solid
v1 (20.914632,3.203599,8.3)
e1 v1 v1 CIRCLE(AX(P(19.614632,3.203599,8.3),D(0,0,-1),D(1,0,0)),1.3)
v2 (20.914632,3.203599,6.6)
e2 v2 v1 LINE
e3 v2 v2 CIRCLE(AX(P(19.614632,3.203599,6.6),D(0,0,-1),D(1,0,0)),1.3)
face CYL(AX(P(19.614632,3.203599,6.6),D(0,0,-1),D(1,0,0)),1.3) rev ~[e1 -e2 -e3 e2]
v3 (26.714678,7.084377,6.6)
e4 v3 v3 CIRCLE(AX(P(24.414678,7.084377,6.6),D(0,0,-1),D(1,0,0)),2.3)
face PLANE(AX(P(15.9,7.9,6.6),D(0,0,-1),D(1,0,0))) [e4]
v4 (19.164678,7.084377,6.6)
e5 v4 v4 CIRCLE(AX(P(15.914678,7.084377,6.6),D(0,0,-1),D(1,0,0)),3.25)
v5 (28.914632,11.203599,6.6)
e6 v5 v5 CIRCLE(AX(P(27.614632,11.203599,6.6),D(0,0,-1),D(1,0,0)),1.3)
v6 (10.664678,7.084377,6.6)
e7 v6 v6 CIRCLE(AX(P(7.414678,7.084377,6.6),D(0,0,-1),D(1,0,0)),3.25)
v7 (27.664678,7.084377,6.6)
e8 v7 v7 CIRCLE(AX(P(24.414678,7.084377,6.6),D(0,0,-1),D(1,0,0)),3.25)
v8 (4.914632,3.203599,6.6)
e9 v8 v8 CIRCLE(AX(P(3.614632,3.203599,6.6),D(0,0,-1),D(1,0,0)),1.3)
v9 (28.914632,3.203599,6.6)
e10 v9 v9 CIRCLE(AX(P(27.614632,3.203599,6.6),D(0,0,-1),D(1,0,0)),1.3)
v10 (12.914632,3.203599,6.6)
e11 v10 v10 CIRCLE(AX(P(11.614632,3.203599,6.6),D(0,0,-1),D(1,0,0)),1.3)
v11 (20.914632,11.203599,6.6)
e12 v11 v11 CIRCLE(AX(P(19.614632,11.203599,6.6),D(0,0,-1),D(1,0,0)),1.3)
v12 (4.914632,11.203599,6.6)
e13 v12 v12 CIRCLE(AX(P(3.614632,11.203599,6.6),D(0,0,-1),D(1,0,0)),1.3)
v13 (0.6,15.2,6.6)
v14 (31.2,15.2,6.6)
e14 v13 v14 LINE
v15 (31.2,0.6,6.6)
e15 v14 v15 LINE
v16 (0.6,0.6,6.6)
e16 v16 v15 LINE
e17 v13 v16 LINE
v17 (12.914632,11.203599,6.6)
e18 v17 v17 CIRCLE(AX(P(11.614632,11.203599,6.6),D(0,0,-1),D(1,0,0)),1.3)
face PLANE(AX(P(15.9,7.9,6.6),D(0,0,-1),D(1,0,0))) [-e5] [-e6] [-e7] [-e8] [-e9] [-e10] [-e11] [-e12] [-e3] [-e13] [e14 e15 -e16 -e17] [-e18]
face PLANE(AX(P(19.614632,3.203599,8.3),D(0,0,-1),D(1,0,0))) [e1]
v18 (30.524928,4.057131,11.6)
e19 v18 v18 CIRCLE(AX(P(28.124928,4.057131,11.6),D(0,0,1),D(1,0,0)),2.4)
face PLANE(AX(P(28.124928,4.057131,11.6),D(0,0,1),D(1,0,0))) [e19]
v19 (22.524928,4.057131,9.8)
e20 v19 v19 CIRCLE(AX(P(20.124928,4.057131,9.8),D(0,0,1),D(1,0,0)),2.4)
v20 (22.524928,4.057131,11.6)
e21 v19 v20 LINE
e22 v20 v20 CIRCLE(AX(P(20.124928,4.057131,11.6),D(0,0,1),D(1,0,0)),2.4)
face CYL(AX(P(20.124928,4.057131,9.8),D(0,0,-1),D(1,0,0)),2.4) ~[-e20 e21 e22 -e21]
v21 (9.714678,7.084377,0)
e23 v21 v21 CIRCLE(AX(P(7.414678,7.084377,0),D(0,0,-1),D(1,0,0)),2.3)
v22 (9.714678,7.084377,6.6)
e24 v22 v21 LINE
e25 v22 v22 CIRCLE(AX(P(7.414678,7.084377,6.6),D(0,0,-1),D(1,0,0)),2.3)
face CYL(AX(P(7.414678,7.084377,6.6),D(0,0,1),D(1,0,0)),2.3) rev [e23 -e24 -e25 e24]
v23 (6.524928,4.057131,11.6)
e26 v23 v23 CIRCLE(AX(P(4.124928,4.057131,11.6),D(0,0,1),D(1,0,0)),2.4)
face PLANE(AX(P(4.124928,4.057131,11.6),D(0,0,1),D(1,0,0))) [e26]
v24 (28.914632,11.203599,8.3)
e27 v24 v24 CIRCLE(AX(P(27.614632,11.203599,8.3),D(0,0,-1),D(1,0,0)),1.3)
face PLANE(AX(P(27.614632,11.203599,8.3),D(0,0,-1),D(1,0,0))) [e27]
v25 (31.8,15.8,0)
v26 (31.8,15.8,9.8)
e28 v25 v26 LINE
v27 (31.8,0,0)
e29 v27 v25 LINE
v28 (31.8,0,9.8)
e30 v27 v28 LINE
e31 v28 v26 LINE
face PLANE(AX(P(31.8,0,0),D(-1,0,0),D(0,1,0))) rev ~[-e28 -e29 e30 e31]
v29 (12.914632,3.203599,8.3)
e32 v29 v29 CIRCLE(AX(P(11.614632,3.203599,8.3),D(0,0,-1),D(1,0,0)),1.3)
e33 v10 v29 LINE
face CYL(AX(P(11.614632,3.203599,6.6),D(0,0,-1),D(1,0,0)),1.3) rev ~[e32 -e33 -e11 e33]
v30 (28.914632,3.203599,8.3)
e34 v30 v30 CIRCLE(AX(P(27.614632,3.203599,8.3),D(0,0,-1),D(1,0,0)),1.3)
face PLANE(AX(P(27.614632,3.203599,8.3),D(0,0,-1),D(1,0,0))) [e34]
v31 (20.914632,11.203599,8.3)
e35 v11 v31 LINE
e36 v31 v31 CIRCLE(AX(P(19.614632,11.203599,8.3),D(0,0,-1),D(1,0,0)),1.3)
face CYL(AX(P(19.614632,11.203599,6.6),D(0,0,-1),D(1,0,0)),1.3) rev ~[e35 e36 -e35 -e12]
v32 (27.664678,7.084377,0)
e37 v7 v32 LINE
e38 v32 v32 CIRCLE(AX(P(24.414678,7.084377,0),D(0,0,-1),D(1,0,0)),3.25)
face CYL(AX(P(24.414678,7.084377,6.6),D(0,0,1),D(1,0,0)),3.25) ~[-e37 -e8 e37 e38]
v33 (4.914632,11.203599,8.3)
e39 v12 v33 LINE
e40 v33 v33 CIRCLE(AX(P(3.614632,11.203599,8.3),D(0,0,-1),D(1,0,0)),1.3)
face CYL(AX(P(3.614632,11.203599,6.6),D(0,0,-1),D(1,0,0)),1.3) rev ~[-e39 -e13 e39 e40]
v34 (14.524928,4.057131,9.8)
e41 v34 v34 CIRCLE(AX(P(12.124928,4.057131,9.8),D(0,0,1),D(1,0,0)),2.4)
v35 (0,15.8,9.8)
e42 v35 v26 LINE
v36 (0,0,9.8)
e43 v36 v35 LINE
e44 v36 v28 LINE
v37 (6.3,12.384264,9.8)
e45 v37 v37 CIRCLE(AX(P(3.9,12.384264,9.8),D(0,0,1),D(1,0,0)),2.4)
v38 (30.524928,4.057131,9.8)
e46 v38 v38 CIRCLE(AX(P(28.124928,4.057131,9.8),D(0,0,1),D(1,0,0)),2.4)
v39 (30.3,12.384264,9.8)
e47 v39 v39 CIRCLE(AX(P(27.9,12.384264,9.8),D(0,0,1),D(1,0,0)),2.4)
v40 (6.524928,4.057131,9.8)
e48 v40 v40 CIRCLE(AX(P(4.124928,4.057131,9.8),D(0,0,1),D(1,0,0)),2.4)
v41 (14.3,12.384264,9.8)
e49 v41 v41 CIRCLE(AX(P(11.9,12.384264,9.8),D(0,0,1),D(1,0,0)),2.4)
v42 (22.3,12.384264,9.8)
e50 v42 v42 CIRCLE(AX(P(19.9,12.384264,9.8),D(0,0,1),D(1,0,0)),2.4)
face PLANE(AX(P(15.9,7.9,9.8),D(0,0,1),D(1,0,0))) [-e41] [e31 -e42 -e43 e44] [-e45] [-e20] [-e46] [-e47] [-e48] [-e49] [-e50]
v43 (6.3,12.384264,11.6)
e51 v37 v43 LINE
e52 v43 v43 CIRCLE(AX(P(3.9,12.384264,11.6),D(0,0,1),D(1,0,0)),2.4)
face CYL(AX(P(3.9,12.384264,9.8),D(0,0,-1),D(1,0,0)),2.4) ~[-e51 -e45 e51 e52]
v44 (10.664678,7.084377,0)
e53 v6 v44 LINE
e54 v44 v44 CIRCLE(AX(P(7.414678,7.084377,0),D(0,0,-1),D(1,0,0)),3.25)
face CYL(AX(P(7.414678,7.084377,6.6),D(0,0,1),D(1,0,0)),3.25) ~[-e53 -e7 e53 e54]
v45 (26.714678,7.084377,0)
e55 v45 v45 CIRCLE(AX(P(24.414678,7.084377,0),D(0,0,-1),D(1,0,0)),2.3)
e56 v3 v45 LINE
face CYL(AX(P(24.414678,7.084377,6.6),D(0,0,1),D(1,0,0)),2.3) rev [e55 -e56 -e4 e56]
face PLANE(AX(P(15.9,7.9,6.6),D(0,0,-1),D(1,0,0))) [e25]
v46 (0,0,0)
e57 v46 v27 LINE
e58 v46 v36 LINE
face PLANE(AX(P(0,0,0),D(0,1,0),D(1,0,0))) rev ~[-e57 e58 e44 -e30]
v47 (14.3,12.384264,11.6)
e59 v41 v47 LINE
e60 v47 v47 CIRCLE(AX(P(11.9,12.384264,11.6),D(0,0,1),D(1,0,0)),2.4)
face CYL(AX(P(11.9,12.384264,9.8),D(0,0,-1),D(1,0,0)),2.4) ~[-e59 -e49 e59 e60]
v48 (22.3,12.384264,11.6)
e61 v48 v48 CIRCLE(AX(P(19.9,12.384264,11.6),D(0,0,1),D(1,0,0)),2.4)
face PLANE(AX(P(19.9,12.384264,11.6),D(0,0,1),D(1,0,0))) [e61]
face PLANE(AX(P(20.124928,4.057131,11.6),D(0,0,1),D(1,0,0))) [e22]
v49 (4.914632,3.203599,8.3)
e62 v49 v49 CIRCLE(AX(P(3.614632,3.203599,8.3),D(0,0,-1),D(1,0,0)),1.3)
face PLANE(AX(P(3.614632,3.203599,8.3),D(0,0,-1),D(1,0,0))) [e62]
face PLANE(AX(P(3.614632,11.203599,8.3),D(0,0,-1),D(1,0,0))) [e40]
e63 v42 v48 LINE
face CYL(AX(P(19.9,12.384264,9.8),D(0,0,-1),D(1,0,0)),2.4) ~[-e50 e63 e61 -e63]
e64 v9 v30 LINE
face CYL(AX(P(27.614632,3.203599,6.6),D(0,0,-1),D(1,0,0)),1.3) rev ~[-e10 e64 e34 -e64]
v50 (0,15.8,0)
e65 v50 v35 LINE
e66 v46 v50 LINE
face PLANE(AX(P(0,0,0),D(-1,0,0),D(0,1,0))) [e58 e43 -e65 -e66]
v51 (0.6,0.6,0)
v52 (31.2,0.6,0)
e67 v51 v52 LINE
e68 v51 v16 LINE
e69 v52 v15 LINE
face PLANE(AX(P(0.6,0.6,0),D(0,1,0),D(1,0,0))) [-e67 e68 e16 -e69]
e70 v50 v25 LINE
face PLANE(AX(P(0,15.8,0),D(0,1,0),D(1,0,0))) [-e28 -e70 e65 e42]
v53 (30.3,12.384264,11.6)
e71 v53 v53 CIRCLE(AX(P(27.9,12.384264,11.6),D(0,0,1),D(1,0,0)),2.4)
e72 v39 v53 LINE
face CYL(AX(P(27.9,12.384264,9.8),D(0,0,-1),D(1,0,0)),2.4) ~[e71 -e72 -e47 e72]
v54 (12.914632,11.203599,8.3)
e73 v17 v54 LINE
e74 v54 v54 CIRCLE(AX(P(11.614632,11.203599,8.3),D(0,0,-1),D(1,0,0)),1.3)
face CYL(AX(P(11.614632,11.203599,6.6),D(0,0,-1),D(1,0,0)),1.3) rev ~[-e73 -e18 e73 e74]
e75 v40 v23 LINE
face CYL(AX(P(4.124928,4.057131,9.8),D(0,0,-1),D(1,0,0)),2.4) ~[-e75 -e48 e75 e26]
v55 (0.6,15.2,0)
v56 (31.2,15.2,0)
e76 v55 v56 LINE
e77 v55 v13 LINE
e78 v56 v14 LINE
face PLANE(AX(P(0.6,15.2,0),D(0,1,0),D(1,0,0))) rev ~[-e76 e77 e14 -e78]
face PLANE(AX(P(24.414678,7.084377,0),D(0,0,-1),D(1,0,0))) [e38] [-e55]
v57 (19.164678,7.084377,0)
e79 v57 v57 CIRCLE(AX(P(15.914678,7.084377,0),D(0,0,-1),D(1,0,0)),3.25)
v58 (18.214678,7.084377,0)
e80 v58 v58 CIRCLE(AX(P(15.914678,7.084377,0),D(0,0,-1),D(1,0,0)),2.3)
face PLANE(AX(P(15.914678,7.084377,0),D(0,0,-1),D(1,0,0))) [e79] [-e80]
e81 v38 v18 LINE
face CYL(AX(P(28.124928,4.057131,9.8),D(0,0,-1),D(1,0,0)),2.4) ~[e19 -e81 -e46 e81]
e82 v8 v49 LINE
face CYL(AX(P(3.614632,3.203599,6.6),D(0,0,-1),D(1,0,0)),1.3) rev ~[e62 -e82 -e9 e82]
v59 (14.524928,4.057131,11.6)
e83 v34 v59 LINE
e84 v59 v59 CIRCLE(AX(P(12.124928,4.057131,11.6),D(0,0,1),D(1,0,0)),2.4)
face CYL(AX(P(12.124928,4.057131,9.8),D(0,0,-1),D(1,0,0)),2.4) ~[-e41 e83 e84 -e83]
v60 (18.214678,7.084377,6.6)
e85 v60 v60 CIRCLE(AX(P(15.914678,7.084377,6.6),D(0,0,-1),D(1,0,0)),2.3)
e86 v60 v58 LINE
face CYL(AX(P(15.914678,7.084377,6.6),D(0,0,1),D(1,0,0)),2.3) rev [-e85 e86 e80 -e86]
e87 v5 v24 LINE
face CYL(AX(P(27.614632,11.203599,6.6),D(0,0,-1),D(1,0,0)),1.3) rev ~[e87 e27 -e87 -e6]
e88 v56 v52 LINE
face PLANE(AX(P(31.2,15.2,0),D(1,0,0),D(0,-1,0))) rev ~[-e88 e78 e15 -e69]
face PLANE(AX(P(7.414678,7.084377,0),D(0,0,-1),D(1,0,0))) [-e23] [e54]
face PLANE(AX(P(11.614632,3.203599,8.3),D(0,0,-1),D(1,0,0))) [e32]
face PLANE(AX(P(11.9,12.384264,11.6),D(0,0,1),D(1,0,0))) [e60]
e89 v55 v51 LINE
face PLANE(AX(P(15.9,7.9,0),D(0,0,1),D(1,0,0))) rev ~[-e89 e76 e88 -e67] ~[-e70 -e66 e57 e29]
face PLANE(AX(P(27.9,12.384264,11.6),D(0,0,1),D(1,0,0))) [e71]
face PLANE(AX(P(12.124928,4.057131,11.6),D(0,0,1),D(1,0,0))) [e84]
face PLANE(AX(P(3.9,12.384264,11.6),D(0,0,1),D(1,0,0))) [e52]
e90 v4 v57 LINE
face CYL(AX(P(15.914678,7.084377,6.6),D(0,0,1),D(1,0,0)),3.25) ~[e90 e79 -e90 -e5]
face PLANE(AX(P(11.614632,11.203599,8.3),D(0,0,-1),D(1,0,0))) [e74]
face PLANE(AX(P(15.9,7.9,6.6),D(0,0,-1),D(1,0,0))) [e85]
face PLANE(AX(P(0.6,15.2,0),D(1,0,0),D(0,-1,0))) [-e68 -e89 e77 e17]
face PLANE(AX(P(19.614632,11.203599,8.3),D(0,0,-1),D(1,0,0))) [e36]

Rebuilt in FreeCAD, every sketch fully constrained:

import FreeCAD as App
import Part
import Sketcher
from FreeCAD import Vector

doc = App.newDocument("Part")
body = doc.addObject("PartDesign::Body", "Body")

sketch1 = doc.addObject("Sketcher::SketchObject", "Sketch")
body.addObject(sketch1)
sketch1.AttachmentSupport = (doc.XY_Plane, [""])
sketch1.MapMode = "FlatFace"
sketch1.addGeometry(Part.LineSegment(Vector(0, 16, 0), Vector(0, 0, 0)), False)
sketch1.addGeometry(Part.LineSegment(Vector(0, 0, 0), Vector(32, 0, 0)), False)
sketch1.addGeometry(Part.LineSegment(Vector(32, 0, 0), Vector(32, 16, 0)), False)
sketch1.addGeometry(Part.LineSegment(Vector(32, 16, 0), Vector(0, 16, 0)), False)
sketch1.addConstraint(Sketcher.Constraint("Coincident", 0, 2, 1, 1))
sketch1.addConstraint(Sketcher.Constraint("Coincident", 1, 2, 2, 1))
sketch1.addConstraint(Sketcher.Constraint("Coincident", 2, 2, 3, 1))
sketch1.addConstraint(Sketcher.Constraint("Coincident", 3, 2, 0, 1))
sketch1.addConstraint(Sketcher.Constraint("Vertical", 0))
sketch1.addConstraint(Sketcher.Constraint("Horizontal", 1))
sketch1.addConstraint(Sketcher.Constraint("Vertical", 2))
sketch1.addConstraint(Sketcher.Constraint("Horizontal", 3))
sketch1.addConstraint(Sketcher.Constraint("Coincident", 0, 2, -1, 1))
sketch1.addConstraint(Sketcher.Constraint("DistanceX", 1, 1, 1, 2, 31.8))
sketch1.addConstraint(Sketcher.Constraint("DistanceY", 0, 2, 0, 1, 15.8))
pad1 = doc.addObject("PartDesign::Pad", "Pad")
body.addObject(pad1)
pad1.Profile = sketch1
pad1.Length = 9.8

sketch2 = doc.addObject("Sketcher::SketchObject", "Sketch001")
body.addObject(sketch2)
sketch2.AttachmentSupport = (doc.XY_Plane, [""])
sketch2.MapMode = "FlatFace"
sketch2.AttachmentOffset = App.Placement(Vector(0, 0, 9.8), App.Rotation())
sketch2.addGeometry(Part.Circle(Vector(3.9, 12.4, 0), Vector(0, 0, 1), 2.4), False)
sketch2.addGeometry(Part.Circle(Vector(28.1, 4.1, 0), Vector(0, 0, 1), 2.4), False)
sketch2.addGeometry(Part.Circle(Vector(27.9, 12.4, 0), Vector(0, 0, 1), 2.4), False)
sketch2.addGeometry(Part.Circle(Vector(19.9, 12.4, 0), Vector(0, 0, 1), 2.4), False)
sketch2.addGeometry(Part.Circle(Vector(20.1, 4.1, 0), Vector(0, 0, 1), 2.4), False)
sketch2.addGeometry(Part.Circle(Vector(11.9, 12.4, 0), Vector(0, 0, 1), 2.4), False)
sketch2.addGeometry(Part.Circle(Vector(12.1, 4.1, 0), Vector(0, 0, 1), 2.4), False)
sketch2.addGeometry(Part.Circle(Vector(4.1, 4.1, 0), Vector(0, 0, 1), 2.4), False)
sketch2.addConstraint(Sketcher.Constraint("Equal", 0, 1))
sketch2.addConstraint(Sketcher.Constraint("Equal", 1, 2))
sketch2.addConstraint(Sketcher.Constraint("Equal", 2, 3))
sketch2.addConstraint(Sketcher.Constraint("Equal", 3, 4))
sketch2.addConstraint(Sketcher.Constraint("Equal", 4, 5))
sketch2.addConstraint(Sketcher.Constraint("Equal", 5, 6))
sketch2.addConstraint(Sketcher.Constraint("Equal", 6, 7))
sketch2.addConstraint(Sketcher.Constraint("Horizontal", 0, 3, 2, 3))
sketch2.addConstraint(Sketcher.Constraint("Horizontal", 2, 3, 3, 3))
sketch2.addConstraint(Sketcher.Constraint("Horizontal", 1, 3, 4, 3))
sketch2.addConstraint(Sketcher.Constraint("Horizontal", 3, 3, 5, 3))
sketch2.addConstraint(Sketcher.Constraint("Horizontal", 4, 3, 6, 3))
sketch2.addConstraint(Sketcher.Constraint("Horizontal", 6, 3, 7, 3))
sketch2.addConstraint(Sketcher.Constraint("Diameter", 0, 4.8))
sketch2.addConstraint(Sketcher.Constraint("DistanceX", 0, 3, 2, 3, 24.0))
sketch2.addConstraint(Sketcher.Constraint("DistanceX", 3, 3, 2, 3, 8.0))
sketch2.addConstraint(Sketcher.Constraint("DistanceX", 4, 3, 1, 3, 8.0))
sketch2.addConstraint(Sketcher.Constraint("DistanceX", 5, 3, 3, 3, 8.0))
sketch2.addConstraint(Sketcher.Constraint("DistanceX", 6, 3, 4, 3, 8.0))
sketch2.addConstraint(Sketcher.Constraint("DistanceX", 7, 3, 6, 3, 8.0))
sketch2.addConstraint(Sketcher.Constraint("DistanceX", -1, 1, 0, 3, 3.9))
sketch2.addConstraint(Sketcher.Constraint("DistanceX", -1, 1, 1, 3, 28.124928))
sketch2.addConstraint(Sketcher.Constraint("DistanceY", -1, 1, 1, 3, 4.057131))
sketch2.addConstraint(Sketcher.Constraint("DistanceY", -1, 1, 0, 3, 12.384264))
pad2 = doc.addObject("PartDesign::Pad", "Pad001")
body.addObject(pad2)
pad2.Profile = sketch2
pad2.Length = 1.8

sketch3 = doc.addObject("Sketcher::SketchObject", "Sketch002")
body.addObject(sketch3)
sketch3.AttachmentSupport = (doc.XY_Plane, [""])
sketch3.MapMode = "FlatFace"
sketch3.addGeometry(Part.LineSegment(Vector(1, 1, 0), Vector(1, 15, 0)), False)
sketch3.addGeometry(Part.LineSegment(Vector(1, 15, 0), Vector(31, 15, 0)), False)
sketch3.addGeometry(Part.LineSegment(Vector(31, 15, 0), Vector(31, 1, 0)), False)
sketch3.addGeometry(Part.LineSegment(Vector(31, 1, 0), Vector(1, 1, 0)), False)
sketch3.addConstraint(Sketcher.Constraint("Coincident", 0, 2, 1, 1))
sketch3.addConstraint(Sketcher.Constraint("Coincident", 1, 2, 2, 1))
sketch3.addConstraint(Sketcher.Constraint("Coincident", 2, 2, 3, 1))
sketch3.addConstraint(Sketcher.Constraint("Coincident", 3, 2, 0, 1))
sketch3.addConstraint(Sketcher.Constraint("Vertical", 0))
sketch3.addConstraint(Sketcher.Constraint("Horizontal", 1))
sketch3.addConstraint(Sketcher.Constraint("Vertical", 2))
sketch3.addConstraint(Sketcher.Constraint("Horizontal", 3))
sketch3.addConstraint(Sketcher.Constraint("DistanceX", 1, 1, 1, 2, 30.6))
sketch3.addConstraint(Sketcher.Constraint("DistanceY", 0, 1, 0, 2, 14.6))
sketch3.addConstraint(Sketcher.Constraint("DistanceX", -1, 1, 0, 2, 0.6))
sketch3.addConstraint(Sketcher.Constraint("DistanceY", -1, 1, 0, 2, 15.2))
pocket1 = doc.addObject("PartDesign::Pocket", "Pocket")
body.addObject(pocket1)
pocket1.Profile = sketch3
pocket1.Length = 6.6
pocket1.Reversed = True

sketch4 = doc.addObject("Sketcher::SketchObject", "Sketch003")
body.addObject(sketch4)
sketch4.AttachmentSupport = (doc.XY_Plane, [""])
sketch4.MapMode = "FlatFace"
sketch4.AttachmentOffset = App.Placement(Vector(0, 0, 6.6), App.Rotation())
sketch4.addGeometry(Part.Circle(Vector(3.6, 3.2, 0), Vector(0, 0, 1), 1.3), False)
sketch4.addGeometry(Part.Circle(Vector(11.6, 3.2, 0), Vector(0, 0, 1), 1.3), False)
sketch4.addGeometry(Part.Circle(Vector(19.6, 3.2, 0), Vector(0, 0, 1), 1.3), False)
sketch4.addGeometry(Part.Circle(Vector(27.6, 3.2, 0), Vector(0, 0, 1), 1.3), False)
sketch4.addGeometry(Part.Circle(Vector(27.6, 11.2, 0), Vector(0, 0, 1), 1.3), False)
sketch4.addGeometry(Part.Circle(Vector(19.6, 11.2, 0), Vector(0, 0, 1), 1.3), False)
sketch4.addGeometry(Part.Circle(Vector(11.6, 11.2, 0), Vector(0, 0, 1), 1.3), False)
sketch4.addGeometry(Part.Circle(Vector(3.6, 11.2, 0), Vector(0, 0, 1), 1.3), False)
sketch4.addConstraint(Sketcher.Constraint("Equal", 0, 1))
sketch4.addConstraint(Sketcher.Constraint("Equal", 1, 2))
sketch4.addConstraint(Sketcher.Constraint("Equal", 2, 3))
sketch4.addConstraint(Sketcher.Constraint("Equal", 3, 4))
sketch4.addConstraint(Sketcher.Constraint("Equal", 4, 5))
sketch4.addConstraint(Sketcher.Constraint("Equal", 5, 6))
sketch4.addConstraint(Sketcher.Constraint("Equal", 6, 7))
sketch4.addConstraint(Sketcher.Constraint("Horizontal", 0, 3, 1, 3))
sketch4.addConstraint(Sketcher.Constraint("Horizontal", 1, 3, 2, 3))
sketch4.addConstraint(Sketcher.Constraint("Horizontal", 2, 3, 3, 3))
sketch4.addConstraint(Sketcher.Constraint("Horizontal", 4, 3, 5, 3))
sketch4.addConstraint(Sketcher.Constraint("Horizontal", 5, 3, 6, 3))
sketch4.addConstraint(Sketcher.Constraint("Horizontal", 6, 3, 7, 3))
sketch4.addConstraint(Sketcher.Constraint("Vertical", 3, 3, 4, 3))
sketch4.addConstraint(Sketcher.Constraint("Vertical", 2, 3, 5, 3))
sketch4.addConstraint(Sketcher.Constraint("Vertical", 1, 3, 6, 3))
sketch4.addConstraint(Sketcher.Constraint("Vertical", 0, 3, 7, 3))
sketch4.addConstraint(Sketcher.Constraint("Diameter", 0, 2.6))
sketch4.addConstraint(Sketcher.Constraint("DistanceX", 0, 3, 1, 3, 8.0))
sketch4.addConstraint(Sketcher.Constraint("DistanceX", 1, 3, 2, 3, 8.0))
sketch4.addConstraint(Sketcher.Constraint("DistanceX", 2, 3, 3, 3, 8.0))
sketch4.addConstraint(Sketcher.Constraint("DistanceY", 3, 3, 4, 3, 8.0))
sketch4.addConstraint(Sketcher.Constraint("DistanceY", -1, 1, 0, 3, 3.203599))
sketch4.addConstraint(Sketcher.Constraint("DistanceX", -1, 1, 0, 3, 3.614632))
pocket2 = doc.addObject("PartDesign::Pocket", "Pocket001")
body.addObject(pocket2)
pocket2.Profile = sketch4
pocket2.Length = 1.7
pocket2.Reversed = True

sketch5 = doc.addObject("Sketcher::SketchObject", "Sketch004")
body.addObject(sketch5)
sketch5.AttachmentSupport = (doc.XY_Plane, [""])
sketch5.MapMode = "FlatFace"
sketch5.AttachmentOffset = App.Placement(Vector(0, 0, 6.6), App.Rotation())
sketch5.addGeometry(Part.Circle(Vector(7.4, 7.1, 0), Vector(0, 0, 1), 3.2), False)
sketch5.addGeometry(Part.Circle(Vector(7.4, 7.1, 0), Vector(0, 0, 1), 2.3), False)
sketch5.addGeometry(Part.Circle(Vector(15.9, 7.1, 0), Vector(0, 0, 1), 3.2), False)
sketch5.addGeometry(Part.Circle(Vector(15.9, 7.1, 0), Vector(0, 0, 1), 2.3), False)
sketch5.addGeometry(Part.Circle(Vector(24.4, 7.1, 0), Vector(0, 0, 1), 3.2), False)
sketch5.addGeometry(Part.Circle(Vector(24.4, 7.1, 0), Vector(0, 0, 1), 2.3), False)
sketch5.addConstraint(Sketcher.Constraint("Coincident", 1, 3, 0, 3))
sketch5.addConstraint(Sketcher.Constraint("Coincident", 3, 3, 2, 3))
sketch5.addConstraint(Sketcher.Constraint("Coincident", 5, 3, 4, 3))
sketch5.addConstraint(Sketcher.Constraint("Equal", 0, 2))
sketch5.addConstraint(Sketcher.Constraint("Equal", 1, 3))
sketch5.addConstraint(Sketcher.Constraint("Equal", 2, 4))
sketch5.addConstraint(Sketcher.Constraint("Equal", 3, 5))
sketch5.addConstraint(Sketcher.Constraint("Horizontal", 1, 3, 2, 3))
sketch5.addConstraint(Sketcher.Constraint("Horizontal", 3, 3, 4, 3))
sketch5.addConstraint(Sketcher.Constraint("Diameter", 0, 6.5))
sketch5.addConstraint(Sketcher.Constraint("Diameter", 1, 4.6))
sketch5.addConstraint(Sketcher.Constraint("DistanceX", 0, 3, 4, 3, 17.0))
sketch5.addConstraint(Sketcher.Constraint("DistanceX", 0, 3, 2, 3, 8.5))
sketch5.addConstraint(Sketcher.Constraint("DistanceX", -1, 1, 0, 3, 7.414678))
sketch5.addConstraint(Sketcher.Constraint("DistanceY", -1, 1, 0, 3, 7.084377))
pad3 = doc.addObject("PartDesign::Pad", "Pad002")
body.addObject(pad3)
pad3.Profile = sketch5
pad3.Length = 6.6
pad3.Reversed = True

doc.recompute()
